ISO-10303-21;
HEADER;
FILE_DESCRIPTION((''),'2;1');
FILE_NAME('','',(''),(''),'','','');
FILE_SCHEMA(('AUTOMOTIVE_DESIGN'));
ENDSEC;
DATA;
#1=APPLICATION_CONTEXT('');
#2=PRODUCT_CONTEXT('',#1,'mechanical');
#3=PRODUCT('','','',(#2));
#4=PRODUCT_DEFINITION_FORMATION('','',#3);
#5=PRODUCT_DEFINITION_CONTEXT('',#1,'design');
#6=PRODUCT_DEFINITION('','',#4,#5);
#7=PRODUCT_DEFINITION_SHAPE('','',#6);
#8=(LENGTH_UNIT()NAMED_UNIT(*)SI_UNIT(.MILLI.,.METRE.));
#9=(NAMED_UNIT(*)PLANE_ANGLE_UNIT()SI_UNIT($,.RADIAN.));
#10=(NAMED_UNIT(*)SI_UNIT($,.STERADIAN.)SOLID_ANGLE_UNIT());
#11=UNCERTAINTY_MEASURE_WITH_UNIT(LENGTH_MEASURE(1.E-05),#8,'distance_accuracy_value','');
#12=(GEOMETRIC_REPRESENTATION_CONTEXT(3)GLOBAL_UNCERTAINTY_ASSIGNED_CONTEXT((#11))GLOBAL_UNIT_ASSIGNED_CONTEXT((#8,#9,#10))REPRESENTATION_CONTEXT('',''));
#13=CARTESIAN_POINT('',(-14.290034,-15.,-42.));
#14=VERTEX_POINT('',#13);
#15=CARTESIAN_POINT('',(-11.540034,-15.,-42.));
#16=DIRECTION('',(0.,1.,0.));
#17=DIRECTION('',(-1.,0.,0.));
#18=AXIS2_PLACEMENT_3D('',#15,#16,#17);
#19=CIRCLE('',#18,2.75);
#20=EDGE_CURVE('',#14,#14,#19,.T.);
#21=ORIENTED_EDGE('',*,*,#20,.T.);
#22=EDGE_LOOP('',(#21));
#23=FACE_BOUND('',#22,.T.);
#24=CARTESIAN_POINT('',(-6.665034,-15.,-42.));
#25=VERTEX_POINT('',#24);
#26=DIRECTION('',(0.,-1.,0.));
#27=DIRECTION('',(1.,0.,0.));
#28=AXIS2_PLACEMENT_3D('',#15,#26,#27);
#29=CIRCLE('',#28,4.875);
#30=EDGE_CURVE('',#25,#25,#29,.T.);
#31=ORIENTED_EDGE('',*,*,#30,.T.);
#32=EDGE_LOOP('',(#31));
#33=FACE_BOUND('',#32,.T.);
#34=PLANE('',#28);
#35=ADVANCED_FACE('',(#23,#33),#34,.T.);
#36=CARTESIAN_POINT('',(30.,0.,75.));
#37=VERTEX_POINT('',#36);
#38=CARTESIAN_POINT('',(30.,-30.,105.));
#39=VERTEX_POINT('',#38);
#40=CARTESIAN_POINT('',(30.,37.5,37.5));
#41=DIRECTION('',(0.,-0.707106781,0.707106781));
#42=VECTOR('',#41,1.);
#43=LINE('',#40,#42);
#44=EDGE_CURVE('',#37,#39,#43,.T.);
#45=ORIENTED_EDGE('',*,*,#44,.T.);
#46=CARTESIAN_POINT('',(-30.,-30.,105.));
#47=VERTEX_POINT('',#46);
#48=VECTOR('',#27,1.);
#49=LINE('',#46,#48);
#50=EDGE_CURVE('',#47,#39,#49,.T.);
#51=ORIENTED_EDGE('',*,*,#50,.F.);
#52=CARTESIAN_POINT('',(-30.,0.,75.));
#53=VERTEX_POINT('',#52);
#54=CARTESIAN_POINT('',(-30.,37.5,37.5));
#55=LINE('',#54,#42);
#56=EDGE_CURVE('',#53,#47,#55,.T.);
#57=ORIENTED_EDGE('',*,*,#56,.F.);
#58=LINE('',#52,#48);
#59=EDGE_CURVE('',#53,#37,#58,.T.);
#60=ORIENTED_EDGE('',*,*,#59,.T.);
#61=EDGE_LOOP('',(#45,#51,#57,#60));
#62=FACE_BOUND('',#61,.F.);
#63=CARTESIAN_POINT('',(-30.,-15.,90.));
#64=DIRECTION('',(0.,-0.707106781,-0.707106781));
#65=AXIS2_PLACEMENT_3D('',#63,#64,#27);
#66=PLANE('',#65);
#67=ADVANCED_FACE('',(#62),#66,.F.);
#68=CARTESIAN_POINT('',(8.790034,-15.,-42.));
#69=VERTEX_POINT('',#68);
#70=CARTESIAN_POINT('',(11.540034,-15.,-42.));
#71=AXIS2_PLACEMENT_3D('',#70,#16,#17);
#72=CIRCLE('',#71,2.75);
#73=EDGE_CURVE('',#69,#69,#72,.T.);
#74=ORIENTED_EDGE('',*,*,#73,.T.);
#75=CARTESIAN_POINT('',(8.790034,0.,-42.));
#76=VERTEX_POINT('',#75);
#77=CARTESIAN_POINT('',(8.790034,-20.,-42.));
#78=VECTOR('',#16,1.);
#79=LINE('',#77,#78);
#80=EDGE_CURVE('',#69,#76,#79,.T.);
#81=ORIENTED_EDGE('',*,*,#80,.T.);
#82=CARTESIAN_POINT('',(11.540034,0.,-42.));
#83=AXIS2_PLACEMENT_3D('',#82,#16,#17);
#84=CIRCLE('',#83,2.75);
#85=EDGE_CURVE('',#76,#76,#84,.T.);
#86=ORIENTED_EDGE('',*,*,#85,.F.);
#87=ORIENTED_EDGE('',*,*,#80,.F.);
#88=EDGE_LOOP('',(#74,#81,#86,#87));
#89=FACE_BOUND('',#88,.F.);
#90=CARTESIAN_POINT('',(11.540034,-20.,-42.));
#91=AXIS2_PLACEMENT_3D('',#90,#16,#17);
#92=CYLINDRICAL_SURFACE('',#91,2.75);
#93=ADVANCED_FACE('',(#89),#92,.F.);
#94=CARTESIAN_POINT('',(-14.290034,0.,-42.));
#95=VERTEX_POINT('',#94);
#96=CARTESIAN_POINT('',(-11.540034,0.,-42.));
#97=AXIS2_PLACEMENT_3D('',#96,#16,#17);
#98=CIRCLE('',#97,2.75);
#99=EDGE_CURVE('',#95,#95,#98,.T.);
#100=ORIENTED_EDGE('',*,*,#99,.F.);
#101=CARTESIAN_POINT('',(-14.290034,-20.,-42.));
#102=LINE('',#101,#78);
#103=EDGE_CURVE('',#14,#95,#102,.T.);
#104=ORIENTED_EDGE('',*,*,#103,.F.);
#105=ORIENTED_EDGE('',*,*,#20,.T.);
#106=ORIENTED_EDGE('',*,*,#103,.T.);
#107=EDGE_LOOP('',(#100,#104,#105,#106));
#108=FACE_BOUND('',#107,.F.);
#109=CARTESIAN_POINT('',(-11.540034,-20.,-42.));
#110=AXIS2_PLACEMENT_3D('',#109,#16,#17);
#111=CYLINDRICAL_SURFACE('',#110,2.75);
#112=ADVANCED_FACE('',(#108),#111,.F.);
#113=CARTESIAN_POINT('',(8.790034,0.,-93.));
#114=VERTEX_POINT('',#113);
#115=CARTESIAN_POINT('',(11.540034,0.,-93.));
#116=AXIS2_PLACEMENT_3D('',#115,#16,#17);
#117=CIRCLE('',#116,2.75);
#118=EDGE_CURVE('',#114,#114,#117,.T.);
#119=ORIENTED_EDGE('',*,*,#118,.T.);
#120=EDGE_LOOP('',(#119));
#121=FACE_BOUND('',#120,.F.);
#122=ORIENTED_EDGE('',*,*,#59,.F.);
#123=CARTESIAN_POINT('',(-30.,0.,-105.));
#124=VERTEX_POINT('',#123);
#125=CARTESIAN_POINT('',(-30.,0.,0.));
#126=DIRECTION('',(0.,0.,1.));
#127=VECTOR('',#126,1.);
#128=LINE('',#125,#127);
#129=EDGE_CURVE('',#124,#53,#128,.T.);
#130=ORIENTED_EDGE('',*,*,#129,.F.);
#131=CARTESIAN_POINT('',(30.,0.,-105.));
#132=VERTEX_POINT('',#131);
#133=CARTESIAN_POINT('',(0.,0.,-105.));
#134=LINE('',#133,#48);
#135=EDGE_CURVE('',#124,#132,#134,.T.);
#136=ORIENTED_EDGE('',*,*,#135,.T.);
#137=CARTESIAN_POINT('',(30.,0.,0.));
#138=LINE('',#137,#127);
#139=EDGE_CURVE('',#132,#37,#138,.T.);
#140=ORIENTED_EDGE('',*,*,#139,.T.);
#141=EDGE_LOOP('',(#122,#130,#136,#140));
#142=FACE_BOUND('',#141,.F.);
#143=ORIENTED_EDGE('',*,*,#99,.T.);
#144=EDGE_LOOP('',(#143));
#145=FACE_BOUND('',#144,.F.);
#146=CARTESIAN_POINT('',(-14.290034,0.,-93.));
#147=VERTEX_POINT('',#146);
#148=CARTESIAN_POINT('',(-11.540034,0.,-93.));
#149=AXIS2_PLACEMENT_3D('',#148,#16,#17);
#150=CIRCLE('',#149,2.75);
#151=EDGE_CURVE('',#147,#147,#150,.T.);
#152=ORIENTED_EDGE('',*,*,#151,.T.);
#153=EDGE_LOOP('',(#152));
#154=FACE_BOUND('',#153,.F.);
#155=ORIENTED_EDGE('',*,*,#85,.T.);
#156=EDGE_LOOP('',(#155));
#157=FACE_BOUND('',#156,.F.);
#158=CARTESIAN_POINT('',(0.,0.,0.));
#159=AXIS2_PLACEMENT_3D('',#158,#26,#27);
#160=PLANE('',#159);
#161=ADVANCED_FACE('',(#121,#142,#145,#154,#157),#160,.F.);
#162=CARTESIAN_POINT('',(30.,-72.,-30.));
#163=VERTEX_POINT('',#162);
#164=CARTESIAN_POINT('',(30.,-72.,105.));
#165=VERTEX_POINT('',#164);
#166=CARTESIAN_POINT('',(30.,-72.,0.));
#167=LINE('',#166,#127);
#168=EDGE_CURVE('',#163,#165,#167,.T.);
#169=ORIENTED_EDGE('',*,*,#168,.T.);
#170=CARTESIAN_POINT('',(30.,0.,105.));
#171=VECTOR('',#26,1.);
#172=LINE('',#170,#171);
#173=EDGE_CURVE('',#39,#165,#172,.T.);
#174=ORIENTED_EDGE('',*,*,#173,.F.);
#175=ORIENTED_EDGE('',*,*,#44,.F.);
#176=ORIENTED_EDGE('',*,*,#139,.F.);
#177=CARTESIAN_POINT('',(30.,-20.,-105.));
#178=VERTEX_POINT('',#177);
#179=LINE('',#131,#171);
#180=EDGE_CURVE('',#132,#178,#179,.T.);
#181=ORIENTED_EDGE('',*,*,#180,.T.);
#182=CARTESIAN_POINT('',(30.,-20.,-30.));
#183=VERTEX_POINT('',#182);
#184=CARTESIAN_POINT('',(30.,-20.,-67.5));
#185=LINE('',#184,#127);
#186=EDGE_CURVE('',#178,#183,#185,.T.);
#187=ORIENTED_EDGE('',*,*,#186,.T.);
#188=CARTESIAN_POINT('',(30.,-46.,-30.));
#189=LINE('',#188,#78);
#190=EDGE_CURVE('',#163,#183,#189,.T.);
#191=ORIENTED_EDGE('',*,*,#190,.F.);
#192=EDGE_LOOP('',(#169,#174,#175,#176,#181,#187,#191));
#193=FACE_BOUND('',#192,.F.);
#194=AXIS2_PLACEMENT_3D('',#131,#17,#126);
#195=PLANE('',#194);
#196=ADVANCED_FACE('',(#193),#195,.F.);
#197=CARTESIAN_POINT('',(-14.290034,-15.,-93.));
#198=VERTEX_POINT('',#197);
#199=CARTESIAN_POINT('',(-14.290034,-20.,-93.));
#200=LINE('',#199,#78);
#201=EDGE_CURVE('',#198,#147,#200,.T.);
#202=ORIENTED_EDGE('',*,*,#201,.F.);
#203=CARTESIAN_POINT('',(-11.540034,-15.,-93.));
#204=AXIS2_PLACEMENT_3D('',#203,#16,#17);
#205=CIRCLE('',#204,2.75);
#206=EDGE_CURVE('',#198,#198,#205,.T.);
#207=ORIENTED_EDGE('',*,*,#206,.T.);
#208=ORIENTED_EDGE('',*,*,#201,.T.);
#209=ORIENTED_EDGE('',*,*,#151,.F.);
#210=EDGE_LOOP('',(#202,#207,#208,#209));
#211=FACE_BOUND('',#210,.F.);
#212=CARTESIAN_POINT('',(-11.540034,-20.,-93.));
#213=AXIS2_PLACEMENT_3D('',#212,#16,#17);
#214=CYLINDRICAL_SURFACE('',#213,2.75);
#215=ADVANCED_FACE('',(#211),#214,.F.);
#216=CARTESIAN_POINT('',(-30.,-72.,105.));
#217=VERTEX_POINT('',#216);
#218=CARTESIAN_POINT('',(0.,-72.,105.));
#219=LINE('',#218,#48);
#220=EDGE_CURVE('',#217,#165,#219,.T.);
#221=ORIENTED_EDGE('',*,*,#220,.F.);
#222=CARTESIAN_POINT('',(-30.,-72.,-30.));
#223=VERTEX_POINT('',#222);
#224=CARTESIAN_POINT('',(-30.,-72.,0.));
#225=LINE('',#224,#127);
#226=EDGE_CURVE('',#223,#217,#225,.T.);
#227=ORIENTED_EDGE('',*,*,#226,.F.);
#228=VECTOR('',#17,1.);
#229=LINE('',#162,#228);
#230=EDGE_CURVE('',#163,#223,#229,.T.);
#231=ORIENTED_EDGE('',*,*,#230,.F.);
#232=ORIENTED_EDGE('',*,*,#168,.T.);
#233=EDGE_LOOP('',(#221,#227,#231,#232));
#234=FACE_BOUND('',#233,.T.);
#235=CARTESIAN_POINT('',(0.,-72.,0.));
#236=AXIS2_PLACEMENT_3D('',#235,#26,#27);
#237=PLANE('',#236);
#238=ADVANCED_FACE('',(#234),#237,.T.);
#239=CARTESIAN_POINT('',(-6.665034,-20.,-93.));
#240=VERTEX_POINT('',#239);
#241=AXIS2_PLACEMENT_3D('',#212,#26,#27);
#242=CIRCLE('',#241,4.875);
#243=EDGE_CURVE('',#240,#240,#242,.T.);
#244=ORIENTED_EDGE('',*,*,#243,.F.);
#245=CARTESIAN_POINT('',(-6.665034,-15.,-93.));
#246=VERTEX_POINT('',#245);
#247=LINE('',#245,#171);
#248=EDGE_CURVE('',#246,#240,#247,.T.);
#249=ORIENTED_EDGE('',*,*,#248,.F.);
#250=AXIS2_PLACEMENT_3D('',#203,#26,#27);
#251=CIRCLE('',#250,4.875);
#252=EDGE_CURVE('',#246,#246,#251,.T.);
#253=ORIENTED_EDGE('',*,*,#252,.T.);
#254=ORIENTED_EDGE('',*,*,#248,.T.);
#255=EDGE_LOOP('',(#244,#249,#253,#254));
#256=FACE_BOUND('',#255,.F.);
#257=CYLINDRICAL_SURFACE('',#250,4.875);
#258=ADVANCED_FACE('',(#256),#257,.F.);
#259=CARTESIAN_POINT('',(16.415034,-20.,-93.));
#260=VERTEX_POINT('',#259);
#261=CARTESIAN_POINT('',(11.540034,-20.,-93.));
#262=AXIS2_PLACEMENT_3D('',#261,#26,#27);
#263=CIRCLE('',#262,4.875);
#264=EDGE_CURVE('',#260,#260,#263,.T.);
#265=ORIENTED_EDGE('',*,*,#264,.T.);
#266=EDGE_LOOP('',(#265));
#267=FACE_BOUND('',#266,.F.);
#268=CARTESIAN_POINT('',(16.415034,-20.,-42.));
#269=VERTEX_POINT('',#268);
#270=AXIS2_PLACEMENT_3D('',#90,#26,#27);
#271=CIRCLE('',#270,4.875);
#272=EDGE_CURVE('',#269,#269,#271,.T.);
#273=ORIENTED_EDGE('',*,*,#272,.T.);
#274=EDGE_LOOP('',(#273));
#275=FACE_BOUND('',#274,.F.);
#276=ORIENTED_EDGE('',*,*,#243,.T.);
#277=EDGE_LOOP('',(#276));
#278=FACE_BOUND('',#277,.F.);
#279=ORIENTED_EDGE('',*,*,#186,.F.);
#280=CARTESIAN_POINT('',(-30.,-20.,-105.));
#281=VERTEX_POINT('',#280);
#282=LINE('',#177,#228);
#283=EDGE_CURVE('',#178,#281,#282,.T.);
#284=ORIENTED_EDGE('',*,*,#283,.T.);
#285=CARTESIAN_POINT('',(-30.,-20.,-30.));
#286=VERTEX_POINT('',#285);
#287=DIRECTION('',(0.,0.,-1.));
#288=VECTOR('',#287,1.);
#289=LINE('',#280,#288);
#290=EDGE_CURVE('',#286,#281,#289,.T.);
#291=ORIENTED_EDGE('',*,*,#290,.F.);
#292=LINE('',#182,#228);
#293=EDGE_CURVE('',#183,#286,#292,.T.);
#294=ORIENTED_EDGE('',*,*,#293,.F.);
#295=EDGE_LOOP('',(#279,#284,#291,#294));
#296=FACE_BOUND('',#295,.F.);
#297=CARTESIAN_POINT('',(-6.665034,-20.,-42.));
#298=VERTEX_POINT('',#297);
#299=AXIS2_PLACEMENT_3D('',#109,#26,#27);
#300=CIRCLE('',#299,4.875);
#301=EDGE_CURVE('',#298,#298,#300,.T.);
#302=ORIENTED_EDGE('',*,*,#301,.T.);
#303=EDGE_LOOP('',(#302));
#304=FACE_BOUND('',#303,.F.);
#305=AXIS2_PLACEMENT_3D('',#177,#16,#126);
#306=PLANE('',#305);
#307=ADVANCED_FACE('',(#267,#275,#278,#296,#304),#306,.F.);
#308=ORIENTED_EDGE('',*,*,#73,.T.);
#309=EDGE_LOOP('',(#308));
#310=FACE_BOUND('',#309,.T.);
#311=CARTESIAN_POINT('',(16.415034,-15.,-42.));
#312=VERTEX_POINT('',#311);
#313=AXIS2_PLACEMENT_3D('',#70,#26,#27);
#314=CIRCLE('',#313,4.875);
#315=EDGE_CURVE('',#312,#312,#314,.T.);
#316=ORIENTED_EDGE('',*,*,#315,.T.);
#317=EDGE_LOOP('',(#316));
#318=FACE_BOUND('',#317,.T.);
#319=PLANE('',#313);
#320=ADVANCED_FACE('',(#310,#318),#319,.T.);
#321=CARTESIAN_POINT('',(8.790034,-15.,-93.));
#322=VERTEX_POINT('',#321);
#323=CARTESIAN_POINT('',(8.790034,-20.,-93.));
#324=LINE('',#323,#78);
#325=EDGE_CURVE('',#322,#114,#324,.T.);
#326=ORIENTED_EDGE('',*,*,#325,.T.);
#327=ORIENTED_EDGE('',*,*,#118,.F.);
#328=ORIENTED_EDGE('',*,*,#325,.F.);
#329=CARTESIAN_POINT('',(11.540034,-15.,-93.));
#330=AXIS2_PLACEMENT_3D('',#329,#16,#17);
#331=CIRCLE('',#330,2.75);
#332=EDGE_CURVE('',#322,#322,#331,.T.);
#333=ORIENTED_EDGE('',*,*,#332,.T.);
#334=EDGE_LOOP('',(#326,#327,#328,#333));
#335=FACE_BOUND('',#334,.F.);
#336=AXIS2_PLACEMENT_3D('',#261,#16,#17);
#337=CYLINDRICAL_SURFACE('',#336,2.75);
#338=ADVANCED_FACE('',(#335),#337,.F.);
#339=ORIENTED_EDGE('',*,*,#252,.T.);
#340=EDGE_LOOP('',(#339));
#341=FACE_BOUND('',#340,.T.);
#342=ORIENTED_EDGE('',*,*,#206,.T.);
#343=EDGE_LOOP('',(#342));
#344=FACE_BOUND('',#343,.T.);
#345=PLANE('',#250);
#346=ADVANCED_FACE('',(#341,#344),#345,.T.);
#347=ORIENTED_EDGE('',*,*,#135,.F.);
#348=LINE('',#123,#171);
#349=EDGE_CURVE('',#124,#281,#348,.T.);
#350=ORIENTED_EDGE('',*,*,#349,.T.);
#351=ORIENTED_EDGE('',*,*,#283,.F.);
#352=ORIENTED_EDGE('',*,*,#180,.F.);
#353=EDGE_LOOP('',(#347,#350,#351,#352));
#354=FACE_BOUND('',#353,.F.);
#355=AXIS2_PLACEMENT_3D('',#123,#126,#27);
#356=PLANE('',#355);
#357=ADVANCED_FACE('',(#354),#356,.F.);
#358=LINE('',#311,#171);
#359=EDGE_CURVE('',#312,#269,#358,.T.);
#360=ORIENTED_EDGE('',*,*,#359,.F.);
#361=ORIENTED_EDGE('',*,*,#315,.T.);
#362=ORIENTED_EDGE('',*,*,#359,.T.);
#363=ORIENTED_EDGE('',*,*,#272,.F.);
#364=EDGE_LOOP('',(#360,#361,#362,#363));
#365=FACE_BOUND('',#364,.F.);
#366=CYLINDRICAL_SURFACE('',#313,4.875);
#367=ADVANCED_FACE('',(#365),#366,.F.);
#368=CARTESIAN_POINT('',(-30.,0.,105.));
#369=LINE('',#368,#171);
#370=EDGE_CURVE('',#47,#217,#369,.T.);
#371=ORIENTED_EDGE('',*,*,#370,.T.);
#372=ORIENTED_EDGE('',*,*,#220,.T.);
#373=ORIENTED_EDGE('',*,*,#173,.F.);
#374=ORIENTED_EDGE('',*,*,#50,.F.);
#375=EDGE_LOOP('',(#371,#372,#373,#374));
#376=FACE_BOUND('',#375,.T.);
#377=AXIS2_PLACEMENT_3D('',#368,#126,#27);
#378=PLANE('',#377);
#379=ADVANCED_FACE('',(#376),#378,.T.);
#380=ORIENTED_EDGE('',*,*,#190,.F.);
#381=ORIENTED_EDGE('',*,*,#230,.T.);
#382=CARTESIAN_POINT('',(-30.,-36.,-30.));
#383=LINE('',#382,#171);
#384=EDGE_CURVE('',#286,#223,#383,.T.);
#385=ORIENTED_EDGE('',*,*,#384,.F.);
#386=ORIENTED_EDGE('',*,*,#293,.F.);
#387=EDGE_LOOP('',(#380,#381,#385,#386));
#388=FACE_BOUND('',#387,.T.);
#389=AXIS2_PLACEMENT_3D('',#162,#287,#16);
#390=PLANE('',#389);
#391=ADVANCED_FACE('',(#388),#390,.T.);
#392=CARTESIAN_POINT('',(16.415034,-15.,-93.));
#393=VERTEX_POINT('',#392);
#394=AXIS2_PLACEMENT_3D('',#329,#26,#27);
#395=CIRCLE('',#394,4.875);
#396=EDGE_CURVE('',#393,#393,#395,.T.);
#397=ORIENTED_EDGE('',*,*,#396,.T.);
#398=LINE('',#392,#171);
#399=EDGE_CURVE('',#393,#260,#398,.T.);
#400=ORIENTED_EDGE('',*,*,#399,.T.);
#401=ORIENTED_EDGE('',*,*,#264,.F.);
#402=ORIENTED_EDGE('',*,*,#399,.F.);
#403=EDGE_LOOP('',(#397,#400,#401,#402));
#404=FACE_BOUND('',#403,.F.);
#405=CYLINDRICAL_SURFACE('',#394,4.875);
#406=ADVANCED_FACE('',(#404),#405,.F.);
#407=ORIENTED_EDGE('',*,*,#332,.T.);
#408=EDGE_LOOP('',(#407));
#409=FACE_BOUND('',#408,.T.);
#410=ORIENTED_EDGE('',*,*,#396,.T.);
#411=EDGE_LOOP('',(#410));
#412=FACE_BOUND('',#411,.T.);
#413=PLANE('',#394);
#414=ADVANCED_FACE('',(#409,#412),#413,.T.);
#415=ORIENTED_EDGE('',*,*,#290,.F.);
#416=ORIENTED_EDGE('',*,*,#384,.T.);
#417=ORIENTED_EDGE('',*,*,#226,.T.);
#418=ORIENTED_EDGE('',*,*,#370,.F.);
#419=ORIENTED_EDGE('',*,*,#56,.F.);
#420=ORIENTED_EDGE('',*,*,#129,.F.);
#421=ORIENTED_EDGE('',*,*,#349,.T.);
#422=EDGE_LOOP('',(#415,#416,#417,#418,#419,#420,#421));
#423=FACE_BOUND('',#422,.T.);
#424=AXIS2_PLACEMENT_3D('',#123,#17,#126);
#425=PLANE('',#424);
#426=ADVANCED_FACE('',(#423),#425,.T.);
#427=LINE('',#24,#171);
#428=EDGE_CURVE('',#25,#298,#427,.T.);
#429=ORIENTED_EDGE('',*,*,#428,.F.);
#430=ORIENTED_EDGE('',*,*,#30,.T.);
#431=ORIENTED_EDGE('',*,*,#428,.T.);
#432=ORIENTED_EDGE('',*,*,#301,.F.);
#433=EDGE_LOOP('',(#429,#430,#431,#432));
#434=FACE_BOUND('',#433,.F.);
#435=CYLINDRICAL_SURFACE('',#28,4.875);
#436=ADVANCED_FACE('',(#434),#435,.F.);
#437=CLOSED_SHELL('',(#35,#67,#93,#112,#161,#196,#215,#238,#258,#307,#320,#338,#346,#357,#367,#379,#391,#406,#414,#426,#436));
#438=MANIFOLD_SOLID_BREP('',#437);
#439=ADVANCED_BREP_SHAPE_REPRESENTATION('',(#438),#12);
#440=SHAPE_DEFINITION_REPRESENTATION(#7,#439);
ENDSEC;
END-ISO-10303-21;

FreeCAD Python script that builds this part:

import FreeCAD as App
import Part
import Sketcher

V = App.Vector
Q = App.Units.Quantity


def edges_at(feature, points):
    """Names of the edges that pass closest to the given points."""
    edges = feature.Shape.Edges
    near = lambda p: min(range(len(edges)), key=lambda i: edges[i].distToShape(Part.Vertex(*p))[0])
    return sorted({f"Edge{near(p) + 1}" for p in points})

doc = App.newDocument("Part")
body = doc.addObject("PartDesign::Body", "Body")

# Sketch on XZ plane
sketch1 = body.newObject("Sketcher::SketchObject", "Sketch")
sketch1.AttachmentSupport = (doc.getObject("XZ_Plane"), [""])
sketch1.MapMode = "FlatFace"
sketch1.addGeometry(Part.LineSegment(V(-30, 105, 0), V(-30, -105, 0)), False)
sketch1.addGeometry(Part.LineSegment(V(-30, -105, 0), V(30, -105, 0)), False)
sketch1.addGeometry(Part.LineSegment(V(30, -105, 0), V(30, 105, 0)), False)
sketch1.addGeometry(Part.LineSegment(V(30, 105, 0), V(-30, 105, 0)), False)
sketch1.addConstraint(Sketcher.Constraint("Coincident", 0, 2, 1, 1))
sketch1.addConstraint(Sketcher.Constraint("Coincident", 1, 2, 2, 1))
sketch1.addConstraint(Sketcher.Constraint("Coincident", 2, 2, 3, 1))
sketch1.addConstraint(Sketcher.Constraint("Coincident", 3, 2, 0, 1))
sketch1.addConstraint(Sketcher.Constraint("Vertical", 0))
sketch1.addConstraint(Sketcher.Constraint("Horizontal", 1))
sketch1.addConstraint(Sketcher.Constraint("Vertical", 2))
sketch1.addConstraint(Sketcher.Constraint("Horizontal", 3))
sketch1.addConstraint(Sketcher.Constraint("Symmetric", 0, 2, 2, 2, -1, 1))
sketch1.addConstraint(Sketcher.Constraint("DistanceX", 1, 1, 1, 2, Q("60 mm")))
sketch1.addConstraint(Sketcher.Constraint("DistanceY", 0, 2, 0, 1, Q("210 mm")))
pad1 = body.newObject("PartDesign::Pad", "Pad")
pad1.Profile = sketch1
pad1.Length = 72

# Sketch on YZ plane
sketch2 = body.newObject("Sketcher::SketchObject", "Sketch001")
sketch2.AttachmentSupport = (doc.getObject("YZ_Plane"), [""])
sketch2.MapMode = "FlatFace"
sketch2.AttachmentOffset = App.Placement(V(0, 0, 30), App.Rotation())
sketch2.addGeometry(Part.LineSegment(V(-72, -30, 0), V(-72, -105, 0)), False)
sketch2.addGeometry(Part.LineSegment(V(-72, -105, 0), V(-20, -105, 0)), False)
sketch2.addGeometry(Part.LineSegment(V(-20, -105, 0), V(-20, -30, 0)), False)
sketch2.addGeometry(Part.LineSegment(V(-20, -30, 0), V(-72, -30, 0)), False)
sketch2.addConstraint(Sketcher.Constraint("Coincident", 0, 2, 1, 1))
sketch2.addConstraint(Sketcher.Constraint("Coincident", 1, 2, 2, 1))
sketch2.addConstraint(Sketcher.Constraint("Coincident", 2, 2, 3, 1))
sketch2.addConstraint(Sketcher.Constraint("Coincident", 3, 2, 0, 1))
sketch2.addConstraint(Sketcher.Constraint("Vertical", 0))
sketch2.addConstraint(Sketcher.Constraint("Horizontal", 1))
sketch2.addConstraint(Sketcher.Constraint("Vertical", 2))
sketch2.addConstraint(Sketcher.Constraint("Horizontal", 3))
sketch2.addConstraint(Sketcher.Constraint("DistanceX", 1, 1, 1, 2, Q("52 mm")))
sketch2.addConstraint(Sketcher.Constraint("DistanceY", 0, 2, 0, 1, Q("75 mm")))
sketch2.addConstraint(Sketcher.Constraint("DistanceX", 0, 2, -1, 1, Q("72 mm")))
sketch2.addConstraint(Sketcher.Constraint("DistanceY", 0, 2, -1, 1, Q("105 mm")))
pocket1 = body.newObject("PartDesign::Pocket", "Pocket")
pocket1.Profile = sketch2
pocket1.Type = "ThroughAll"
doc.recompute()

chamfer = body.newObject("PartDesign::Chamfer", "Chamfer")
chamfer.Base = (pocket1, edges_at(pocket1, [(0, 0, 105)]))
chamfer.Size = 30

# Sketch on XZ plane
sketch3 = body.newObject("Sketcher::SketchObject", "Sketch002")
sketch3.AttachmentSupport = (doc.getObject("XZ_Plane"), [""])
sketch3.MapMode = "FlatFace"
sketch3.AttachmentOffset = App.Placement(V(0, 0, 20), App.Rotation())
sketch3.addGeometry(Part.Circle(V(-11.540034, -42, 0), V(0, 0, 1), 2.75), False)
sketch3.addGeometry(Part.Circle(V(11.540034, -42, 0), V(0, 0, 1), 2.75), False)
sketch3.addGeometry(Part.Circle(V(-11.540034, -93, 0), V(0, 0, 1), 2.75), False)
sketch3.addGeometry(Part.Circle(V(11.540034, -93, 0), V(0, 0, 1), 2.75), False)
sketch3.addConstraint(Sketcher.Constraint("Equal", 0, 1))
sketch3.addConstraint(Sketcher.Constraint("Equal", 1, 2))
sketch3.addConstraint(Sketcher.Constraint("Equal", 2, 3))
sketch3.addConstraint(Sketcher.Constraint("Symmetric", 0, 3, 1, 3, -2))
sketch3.addConstraint(Sketcher.Constraint("Symmetric", 2, 3, 3, 3, -2))
sketch3.addConstraint(Sketcher.Constraint("Vertical", 0, 3, 2, 3))
sketch3.addConstraint(Sketcher.Constraint("Diameter", 0, Q("5.5 mm")))
sketch3.addConstraint(Sketcher.Constraint("DistanceY", 0, 3, -1, 1, Q("42 mm")))
sketch3.addConstraint(Sketcher.Constraint("DistanceY", 2, 3, -1, 1, Q("93 mm")))
sketch3.addConstraint(Sketcher.Constraint("DistanceX", 0, 3, -1, 1, Q("11.540034 mm")))
doc.recompute()
hole = body.newObject("PartDesign::Hole", "Hole")
hole.Profile = sketch3
hole.ThreadType = "None"
hole.Diameter = 5.5
hole.DepthType = "ThroughAll"
hole.HoleCutType = "Counterbore"
hole.HoleCutDiameter = 9.75
hole.HoleCutDepth = 5

doc.recompute()
